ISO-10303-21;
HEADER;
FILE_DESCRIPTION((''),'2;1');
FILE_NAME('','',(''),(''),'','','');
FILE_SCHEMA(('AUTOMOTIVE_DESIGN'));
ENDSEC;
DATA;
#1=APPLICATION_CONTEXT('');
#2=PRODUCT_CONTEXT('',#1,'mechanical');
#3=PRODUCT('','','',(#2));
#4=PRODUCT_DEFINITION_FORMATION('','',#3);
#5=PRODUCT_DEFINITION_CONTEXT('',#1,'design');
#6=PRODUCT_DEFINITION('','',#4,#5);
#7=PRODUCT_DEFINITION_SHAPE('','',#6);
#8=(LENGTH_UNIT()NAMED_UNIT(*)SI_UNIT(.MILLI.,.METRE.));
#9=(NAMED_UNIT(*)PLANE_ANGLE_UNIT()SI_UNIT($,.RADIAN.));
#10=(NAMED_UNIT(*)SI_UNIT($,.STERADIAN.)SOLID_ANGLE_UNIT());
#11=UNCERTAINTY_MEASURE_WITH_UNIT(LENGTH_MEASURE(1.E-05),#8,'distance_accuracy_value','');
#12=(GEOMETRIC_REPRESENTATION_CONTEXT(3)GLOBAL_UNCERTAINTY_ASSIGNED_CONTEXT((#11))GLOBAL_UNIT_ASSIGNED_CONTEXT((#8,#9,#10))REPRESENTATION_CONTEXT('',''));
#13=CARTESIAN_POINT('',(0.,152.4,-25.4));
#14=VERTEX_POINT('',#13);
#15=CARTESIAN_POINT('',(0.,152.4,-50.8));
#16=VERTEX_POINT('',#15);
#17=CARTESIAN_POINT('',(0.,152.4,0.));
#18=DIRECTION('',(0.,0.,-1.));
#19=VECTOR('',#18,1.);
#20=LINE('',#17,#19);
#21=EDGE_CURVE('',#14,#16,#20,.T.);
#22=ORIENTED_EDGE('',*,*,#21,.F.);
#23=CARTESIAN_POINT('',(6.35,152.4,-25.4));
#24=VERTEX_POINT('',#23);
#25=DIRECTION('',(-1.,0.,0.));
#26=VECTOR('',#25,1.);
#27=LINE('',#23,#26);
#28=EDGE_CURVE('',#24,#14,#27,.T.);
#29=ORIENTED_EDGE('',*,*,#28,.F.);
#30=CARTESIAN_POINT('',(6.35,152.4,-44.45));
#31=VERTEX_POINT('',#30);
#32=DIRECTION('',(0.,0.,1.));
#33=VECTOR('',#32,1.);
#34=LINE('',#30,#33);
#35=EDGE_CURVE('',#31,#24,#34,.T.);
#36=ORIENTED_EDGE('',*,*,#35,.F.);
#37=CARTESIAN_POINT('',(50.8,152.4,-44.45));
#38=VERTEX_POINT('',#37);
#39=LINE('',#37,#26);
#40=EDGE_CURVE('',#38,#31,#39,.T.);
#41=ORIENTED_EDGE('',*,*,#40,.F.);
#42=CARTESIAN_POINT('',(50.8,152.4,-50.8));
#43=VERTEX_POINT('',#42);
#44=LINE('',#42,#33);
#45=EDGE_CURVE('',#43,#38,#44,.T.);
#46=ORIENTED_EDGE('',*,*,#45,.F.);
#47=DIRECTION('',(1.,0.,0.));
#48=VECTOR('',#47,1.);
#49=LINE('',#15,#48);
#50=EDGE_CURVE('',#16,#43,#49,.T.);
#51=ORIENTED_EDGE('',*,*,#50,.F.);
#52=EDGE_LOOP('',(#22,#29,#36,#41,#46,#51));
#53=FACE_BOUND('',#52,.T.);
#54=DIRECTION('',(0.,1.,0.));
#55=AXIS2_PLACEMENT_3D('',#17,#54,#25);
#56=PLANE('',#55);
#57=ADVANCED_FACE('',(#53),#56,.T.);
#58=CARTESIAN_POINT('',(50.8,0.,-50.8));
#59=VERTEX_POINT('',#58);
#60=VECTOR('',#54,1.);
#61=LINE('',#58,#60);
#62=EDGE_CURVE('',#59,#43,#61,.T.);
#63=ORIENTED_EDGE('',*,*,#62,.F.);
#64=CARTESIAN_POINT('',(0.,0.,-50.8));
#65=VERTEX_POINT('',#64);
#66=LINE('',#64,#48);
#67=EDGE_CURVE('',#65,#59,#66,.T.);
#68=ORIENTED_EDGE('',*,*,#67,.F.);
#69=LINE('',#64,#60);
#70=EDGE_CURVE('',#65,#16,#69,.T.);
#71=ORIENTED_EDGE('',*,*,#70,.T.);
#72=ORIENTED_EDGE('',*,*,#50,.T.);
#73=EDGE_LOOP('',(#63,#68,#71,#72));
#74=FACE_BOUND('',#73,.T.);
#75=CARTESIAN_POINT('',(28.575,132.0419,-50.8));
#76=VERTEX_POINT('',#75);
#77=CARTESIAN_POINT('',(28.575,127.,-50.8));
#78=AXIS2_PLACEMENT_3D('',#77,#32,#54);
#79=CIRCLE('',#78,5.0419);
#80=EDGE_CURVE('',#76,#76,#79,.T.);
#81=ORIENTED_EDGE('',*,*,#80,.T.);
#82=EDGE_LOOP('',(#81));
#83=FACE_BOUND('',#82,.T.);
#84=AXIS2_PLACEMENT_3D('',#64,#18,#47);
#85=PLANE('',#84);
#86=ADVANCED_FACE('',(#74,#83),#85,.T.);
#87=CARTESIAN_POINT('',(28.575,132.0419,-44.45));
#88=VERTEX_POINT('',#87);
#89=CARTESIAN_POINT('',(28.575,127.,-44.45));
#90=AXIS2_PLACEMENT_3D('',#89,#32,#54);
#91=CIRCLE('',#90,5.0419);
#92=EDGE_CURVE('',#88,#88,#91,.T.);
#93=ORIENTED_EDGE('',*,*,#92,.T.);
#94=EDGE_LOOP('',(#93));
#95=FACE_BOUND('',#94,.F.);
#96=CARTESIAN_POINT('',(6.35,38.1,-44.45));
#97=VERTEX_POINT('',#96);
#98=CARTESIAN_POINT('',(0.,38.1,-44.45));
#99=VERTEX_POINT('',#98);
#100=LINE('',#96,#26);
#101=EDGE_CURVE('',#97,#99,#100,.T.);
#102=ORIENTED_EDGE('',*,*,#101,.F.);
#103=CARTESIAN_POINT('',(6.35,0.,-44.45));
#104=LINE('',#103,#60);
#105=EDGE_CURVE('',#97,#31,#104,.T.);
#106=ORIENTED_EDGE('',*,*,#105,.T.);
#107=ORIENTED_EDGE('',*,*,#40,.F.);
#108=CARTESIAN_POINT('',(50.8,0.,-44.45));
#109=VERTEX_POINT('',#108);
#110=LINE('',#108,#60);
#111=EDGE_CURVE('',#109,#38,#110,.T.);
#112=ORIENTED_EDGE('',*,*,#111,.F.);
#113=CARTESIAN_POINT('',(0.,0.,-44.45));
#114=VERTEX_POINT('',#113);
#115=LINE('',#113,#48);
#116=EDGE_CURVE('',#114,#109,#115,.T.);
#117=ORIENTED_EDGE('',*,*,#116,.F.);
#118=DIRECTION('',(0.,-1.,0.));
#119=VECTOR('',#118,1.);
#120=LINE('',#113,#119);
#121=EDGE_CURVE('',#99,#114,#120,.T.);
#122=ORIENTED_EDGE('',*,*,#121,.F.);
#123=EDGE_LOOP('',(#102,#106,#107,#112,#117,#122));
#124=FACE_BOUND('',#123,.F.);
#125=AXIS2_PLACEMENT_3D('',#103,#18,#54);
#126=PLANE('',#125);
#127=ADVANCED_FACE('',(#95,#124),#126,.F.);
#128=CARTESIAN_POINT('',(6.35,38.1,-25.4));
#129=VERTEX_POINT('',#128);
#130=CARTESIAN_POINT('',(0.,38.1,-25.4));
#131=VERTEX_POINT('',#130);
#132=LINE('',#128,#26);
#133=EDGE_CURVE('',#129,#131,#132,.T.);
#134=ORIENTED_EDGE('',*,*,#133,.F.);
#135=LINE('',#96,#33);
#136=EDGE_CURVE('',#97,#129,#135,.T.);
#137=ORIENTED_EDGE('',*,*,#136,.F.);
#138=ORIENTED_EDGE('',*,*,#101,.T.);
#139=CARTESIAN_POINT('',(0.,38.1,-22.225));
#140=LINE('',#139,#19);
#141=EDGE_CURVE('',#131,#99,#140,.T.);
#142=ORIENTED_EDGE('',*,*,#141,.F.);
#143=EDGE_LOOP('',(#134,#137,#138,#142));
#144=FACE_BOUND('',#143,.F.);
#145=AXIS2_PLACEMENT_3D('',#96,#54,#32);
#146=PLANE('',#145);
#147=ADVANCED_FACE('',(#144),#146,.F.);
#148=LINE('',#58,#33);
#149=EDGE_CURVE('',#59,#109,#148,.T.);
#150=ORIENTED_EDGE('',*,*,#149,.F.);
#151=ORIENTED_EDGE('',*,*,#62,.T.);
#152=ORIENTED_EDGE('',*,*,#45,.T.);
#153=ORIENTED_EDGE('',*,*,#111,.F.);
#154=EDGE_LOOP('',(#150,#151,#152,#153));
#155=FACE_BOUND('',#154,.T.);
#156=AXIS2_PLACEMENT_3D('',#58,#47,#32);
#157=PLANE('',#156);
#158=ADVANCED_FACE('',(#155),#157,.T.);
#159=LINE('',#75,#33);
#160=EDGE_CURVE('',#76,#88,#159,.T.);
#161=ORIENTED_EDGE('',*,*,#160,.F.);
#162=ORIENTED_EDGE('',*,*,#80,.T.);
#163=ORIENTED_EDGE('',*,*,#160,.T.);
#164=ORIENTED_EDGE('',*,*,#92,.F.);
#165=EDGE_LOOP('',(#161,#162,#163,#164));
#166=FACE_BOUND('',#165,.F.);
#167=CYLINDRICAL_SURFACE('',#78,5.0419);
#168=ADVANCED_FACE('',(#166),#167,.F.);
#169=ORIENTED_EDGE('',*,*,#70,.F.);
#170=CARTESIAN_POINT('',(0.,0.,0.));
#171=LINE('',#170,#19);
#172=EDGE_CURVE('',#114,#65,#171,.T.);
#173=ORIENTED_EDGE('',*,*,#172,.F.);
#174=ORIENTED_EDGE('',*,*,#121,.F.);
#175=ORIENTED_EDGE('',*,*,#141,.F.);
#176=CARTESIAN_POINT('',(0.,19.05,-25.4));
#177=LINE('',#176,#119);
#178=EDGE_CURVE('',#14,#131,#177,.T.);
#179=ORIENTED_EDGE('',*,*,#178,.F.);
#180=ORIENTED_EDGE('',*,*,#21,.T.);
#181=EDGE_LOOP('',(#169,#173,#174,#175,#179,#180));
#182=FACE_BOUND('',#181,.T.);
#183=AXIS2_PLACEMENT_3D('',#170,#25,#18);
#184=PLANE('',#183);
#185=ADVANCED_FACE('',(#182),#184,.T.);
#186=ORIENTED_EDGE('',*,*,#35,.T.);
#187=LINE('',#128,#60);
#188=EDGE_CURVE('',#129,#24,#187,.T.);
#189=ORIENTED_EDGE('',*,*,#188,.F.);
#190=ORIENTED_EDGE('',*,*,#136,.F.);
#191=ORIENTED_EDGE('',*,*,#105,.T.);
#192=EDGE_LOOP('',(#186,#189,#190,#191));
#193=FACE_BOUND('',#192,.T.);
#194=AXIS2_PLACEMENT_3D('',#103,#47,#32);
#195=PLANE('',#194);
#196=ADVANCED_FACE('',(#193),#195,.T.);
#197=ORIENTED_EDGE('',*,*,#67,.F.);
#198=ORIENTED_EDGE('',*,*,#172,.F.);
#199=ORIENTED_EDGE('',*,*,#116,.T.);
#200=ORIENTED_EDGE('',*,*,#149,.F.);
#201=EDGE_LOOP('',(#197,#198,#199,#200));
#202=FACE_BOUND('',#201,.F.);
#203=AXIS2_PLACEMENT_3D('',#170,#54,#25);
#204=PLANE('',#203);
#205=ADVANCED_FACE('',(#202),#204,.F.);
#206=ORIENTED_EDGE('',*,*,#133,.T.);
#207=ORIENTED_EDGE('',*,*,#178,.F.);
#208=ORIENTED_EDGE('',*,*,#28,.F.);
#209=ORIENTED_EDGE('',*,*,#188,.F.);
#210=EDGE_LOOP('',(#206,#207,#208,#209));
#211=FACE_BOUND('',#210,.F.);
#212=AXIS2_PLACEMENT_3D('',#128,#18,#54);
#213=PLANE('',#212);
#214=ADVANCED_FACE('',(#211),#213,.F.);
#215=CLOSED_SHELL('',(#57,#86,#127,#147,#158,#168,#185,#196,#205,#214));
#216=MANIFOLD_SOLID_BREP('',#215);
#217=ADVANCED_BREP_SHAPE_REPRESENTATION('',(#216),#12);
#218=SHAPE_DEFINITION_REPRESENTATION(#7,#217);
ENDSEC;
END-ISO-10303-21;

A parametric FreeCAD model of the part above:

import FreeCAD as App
import Part
import Sketcher
Q = App.Units.Quantity

doc = App.newDocument("Part")
body = doc.addObject("PartDesign::Body", "Body")

# Sketch on XZ plane
sketch1 = body.newObject("Sketcher::SketchObject", "Sketch")
sketch1.AttachmentSupport = (doc.getObject("XZ_Plane"), [""])
sketch1.MapMode = "FlatFace"
sketch1.addGeometry(Part.LineSegment(App.Vector(0, -50.8, 0), App.Vector(0, 0, 0)), False)
sketch1.addGeometry(Part.LineSegment(App.Vector(0, 0, 0), App.Vector(6.35, 0, 0)), False)
sketch1.addGeometry(Part.LineSegment(App.Vector(6.35, 0, 0), App.Vector(6.35, -44.45, 0)), False)
sketch1.addGeometry(Part.LineSegment(App.Vector(6.35, -44.45, 0), App.Vector(50.8, -44.45, 0)), False)
sketch1.addGeometry(Part.LineSegment(App.Vector(50.8, -44.45, 0), App.Vector(50.8, -50.8, 0)), False)
sketch1.addGeometry(Part.LineSegment(App.Vector(50.8, -50.8, 0), App.Vector(0, -50.8, 0)), False)
sketch1.addConstraint(Sketcher.Constraint("Coincident", 0, 2, 1, 1))
sketch1.addConstraint(Sketcher.Constraint("Coincident", 1, 2, 2, 1))
sketch1.addConstraint(Sketcher.Constraint("Coincident", 2, 2, 3, 1))
sketch1.addConstraint(Sketcher.Constraint("Coincident", 3, 2, 4, 1))
sketch1.addConstraint(Sketcher.Constraint("Coincident", 4, 2, 5, 1))
sketch1.addConstraint(Sketcher.Constraint("Coincident", 5, 2, 0, 1))
sketch1.addConstraint(Sketcher.Constraint("Vertical", 0))
sketch1.addConstraint(Sketcher.Constraint("Horizontal", 1))
sketch1.addConstraint(Sketcher.Constraint("Vertical", 2))
sketch1.addConstraint(Sketcher.Constraint("Horizontal", 3))
sketch1.addConstraint(Sketcher.Constraint("Vertical", 4))
sketch1.addConstraint(Sketcher.Constraint("Horizontal", 5))
sketch1.addConstraint(Sketcher.Constraint("Coincident", 0, 2, -1, 1))
sketch1.addConstraint(Sketcher.Constraint("Equal", 5, 0))
sketch1.addConstraint(Sketcher.Constraint("Equal", 3, 2))
sketch1.addConstraint(Sketcher.Constraint("DistanceX", 5, 2, 5, 1, Q("2 in")))
sketch1.addConstraint(Sketcher.Constraint("DistanceX", 1, 1, 1, 2, Q("0.25 in")))
pad1 = body.newObject("PartDesign::Pad", "Pad")
pad1.Profile = sketch1
pad1.Length = Q("6 in")
pad1.Reversed = True

# Sketch on YZ plane
sketch2 = body.newObject("Sketcher::SketchObject", "Sketch001")
sketch2.AttachmentSupport = (doc.getObject("YZ_Plane"), [""])
sketch2.MapMode = "FlatFace"
sketch2.AttachmentOffset = App.Placement(App.Vector(0, 0, 0.25 * 25.4), App.Rotation())
sketch2.addGeometry(Part.LineSegment(App.Vector(38.1, 0, 0), App.Vector(0, 0, 0)), False)
sketch2.addGeometry(Part.LineSegment(App.Vector(0, 0, 0), App.Vector(0, -44.45, 0)), False)
sketch2.addGeometry(Part.LineSegment(App.Vector(0, -44.45, 0), App.Vector(38.1, -44.45, 0)), False)
sketch2.addGeometry(Part.LineSegment(App.Vector(38.1, -44.45, 0), App.Vector(38.1, 0, 0)), False)
sketch2.addConstraint(Sketcher.Constraint("Coincident", 0, 2, 1, 1))
sketch2.addConstraint(Sketcher.Constraint("Coincident", 1, 2, 2, 1))
sketch2.addConstraint(Sketcher.Constraint("Coincident", 2, 2, 3, 1))
sketch2.addConstraint(Sketcher.Constraint("Coincident", 3, 2, 0, 1))
sketch2.addConstraint(Sketcher.Constraint("Horizontal", 0))
sketch2.addConstraint(Sketcher.Constraint("Vertical", 1))
sketch2.addConstraint(Sketcher.Constraint("Horizontal", 2))
sketch2.addConstraint(Sketcher.Constraint("Vertical", 3))
sketch2.addConstraint(Sketcher.Constraint("Coincident", 0, 2, -1, 1))
sketch2.addConstraint(Sketcher.Constraint("DistanceX", 0, 2, 0, 1, Q("1.5 in")))
sketch2.addConstraint(Sketcher.Constraint("DistanceY", 1, 2, 1, 1, Q("1.75 in")))
pocket1 = body.newObject("PartDesign::Pocket", "Pocket")
pocket1.Profile = sketch2
pocket1.Type = "ThroughAll"

# Sketch on YZ plane
sketch3 = body.newObject("Sketcher::SketchObject", "Sketch002")
sketch3.AttachmentSupport = (doc.getObject("YZ_Plane"), [""])
sketch3.MapMode = "FlatFace"
sketch3.AttachmentOffset = App.Placement(App.Vector(0, 0, 0.25 * 25.4), App.Rotation())
sketch3.addGeometry(Part.LineSegment(App.Vector(152.4, 0, 0), App.Vector(38.1, 0, 0)), False)
sketch3.addGeometry(Part.LineSegment(App.Vector(38.1, 0, 0), App.Vector(38.1, -25.4, 0)), False)
sketch3.addGeometry(Part.LineSegment(App.Vector(38.1, -25.4, 0), App.Vector(152.4, -25.4, 0)), False)
sketch3.addGeometry(Part.LineSegment(App.Vector(152.4, -25.4, 0), App.Vector(152.4, 0, 0)), False)
sketch3.addConstraint(Sketcher.Constraint("Coincident", 0, 2, 1, 1))
sketch3.addConstraint(Sketcher.Constraint("Coincident", 1, 2, 2, 1))
sketch3.addConstraint(Sketcher.Constraint("Coincident", 2, 2, 3, 1))
sketch3.addConstraint(Sketcher.Constraint("Coincident", 3, 2, 0, 1))
sketch3.addConstraint(Sketcher.Constraint("Horizontal", 0))
sketch3.addConstraint(Sketcher.Constraint("Vertical", 1))
sketch3.addConstraint(Sketcher.Constraint("Horizontal", 2))
sketch3.addConstraint(Sketcher.Constraint("Vertical", 3))
sketch3.addConstraint(Sketcher.Constraint("PointOnObject", 0, 2, -1))
sketch3.addConstraint(Sketcher.Constraint("DistanceY", 1, 2, 1, 1, Q("1 in")))
sketch3.addConstraint(Sketcher.Constraint("DistanceX", 0, 2, 0, 1, Q("4.5 in")))
sketch3.addConstraint(Sketcher.Constraint("DistanceX", -1, 1, 2, 2, Q("6 in")))
pocket2 = body.newObject("PartDesign::Pocket", "Pocket001")
pocket2.Profile = sketch3
pocket2.Type = "ThroughAll"

# Sketch on XY plane
sketch4 = body.newObject("Sketcher::SketchObject", "Sketch003")
sketch4.AttachmentSupport = (doc.getObject("XY_Plane"), [""])
sketch4.MapMode = "FlatFace"
sketch4.AttachmentOffset = App.Placement(App.Vector(0, 0, -2 * 25.4), App.Rotation())
sketch4.addGeometry(Part.Circle(App.Vector(28.575, 127, 0), App.Vector(0, 0, 1), 5.0419), False)
sketch4.addConstraint(Sketcher.Constraint("Diameter", 0, Q("0.397 in")))
sketch4.addConstraint(Sketcher.Constraint("DistanceY", -1, 1, 0, 3, Q("5 in")))
sketch4.addConstraint(Sketcher.Constraint("DistanceX", -1, 1, 0, 3, Q("1.125 in")))
doc.recompute()
hole = body.newObject("PartDesign::Hole", "Hole")
hole.Profile = sketch4
hole.ThreadType = "None"
hole.Diameter = Q("0.397 in")
hole.DepthType = "ThroughAll"
hole.Reversed = True

doc.recompute()
